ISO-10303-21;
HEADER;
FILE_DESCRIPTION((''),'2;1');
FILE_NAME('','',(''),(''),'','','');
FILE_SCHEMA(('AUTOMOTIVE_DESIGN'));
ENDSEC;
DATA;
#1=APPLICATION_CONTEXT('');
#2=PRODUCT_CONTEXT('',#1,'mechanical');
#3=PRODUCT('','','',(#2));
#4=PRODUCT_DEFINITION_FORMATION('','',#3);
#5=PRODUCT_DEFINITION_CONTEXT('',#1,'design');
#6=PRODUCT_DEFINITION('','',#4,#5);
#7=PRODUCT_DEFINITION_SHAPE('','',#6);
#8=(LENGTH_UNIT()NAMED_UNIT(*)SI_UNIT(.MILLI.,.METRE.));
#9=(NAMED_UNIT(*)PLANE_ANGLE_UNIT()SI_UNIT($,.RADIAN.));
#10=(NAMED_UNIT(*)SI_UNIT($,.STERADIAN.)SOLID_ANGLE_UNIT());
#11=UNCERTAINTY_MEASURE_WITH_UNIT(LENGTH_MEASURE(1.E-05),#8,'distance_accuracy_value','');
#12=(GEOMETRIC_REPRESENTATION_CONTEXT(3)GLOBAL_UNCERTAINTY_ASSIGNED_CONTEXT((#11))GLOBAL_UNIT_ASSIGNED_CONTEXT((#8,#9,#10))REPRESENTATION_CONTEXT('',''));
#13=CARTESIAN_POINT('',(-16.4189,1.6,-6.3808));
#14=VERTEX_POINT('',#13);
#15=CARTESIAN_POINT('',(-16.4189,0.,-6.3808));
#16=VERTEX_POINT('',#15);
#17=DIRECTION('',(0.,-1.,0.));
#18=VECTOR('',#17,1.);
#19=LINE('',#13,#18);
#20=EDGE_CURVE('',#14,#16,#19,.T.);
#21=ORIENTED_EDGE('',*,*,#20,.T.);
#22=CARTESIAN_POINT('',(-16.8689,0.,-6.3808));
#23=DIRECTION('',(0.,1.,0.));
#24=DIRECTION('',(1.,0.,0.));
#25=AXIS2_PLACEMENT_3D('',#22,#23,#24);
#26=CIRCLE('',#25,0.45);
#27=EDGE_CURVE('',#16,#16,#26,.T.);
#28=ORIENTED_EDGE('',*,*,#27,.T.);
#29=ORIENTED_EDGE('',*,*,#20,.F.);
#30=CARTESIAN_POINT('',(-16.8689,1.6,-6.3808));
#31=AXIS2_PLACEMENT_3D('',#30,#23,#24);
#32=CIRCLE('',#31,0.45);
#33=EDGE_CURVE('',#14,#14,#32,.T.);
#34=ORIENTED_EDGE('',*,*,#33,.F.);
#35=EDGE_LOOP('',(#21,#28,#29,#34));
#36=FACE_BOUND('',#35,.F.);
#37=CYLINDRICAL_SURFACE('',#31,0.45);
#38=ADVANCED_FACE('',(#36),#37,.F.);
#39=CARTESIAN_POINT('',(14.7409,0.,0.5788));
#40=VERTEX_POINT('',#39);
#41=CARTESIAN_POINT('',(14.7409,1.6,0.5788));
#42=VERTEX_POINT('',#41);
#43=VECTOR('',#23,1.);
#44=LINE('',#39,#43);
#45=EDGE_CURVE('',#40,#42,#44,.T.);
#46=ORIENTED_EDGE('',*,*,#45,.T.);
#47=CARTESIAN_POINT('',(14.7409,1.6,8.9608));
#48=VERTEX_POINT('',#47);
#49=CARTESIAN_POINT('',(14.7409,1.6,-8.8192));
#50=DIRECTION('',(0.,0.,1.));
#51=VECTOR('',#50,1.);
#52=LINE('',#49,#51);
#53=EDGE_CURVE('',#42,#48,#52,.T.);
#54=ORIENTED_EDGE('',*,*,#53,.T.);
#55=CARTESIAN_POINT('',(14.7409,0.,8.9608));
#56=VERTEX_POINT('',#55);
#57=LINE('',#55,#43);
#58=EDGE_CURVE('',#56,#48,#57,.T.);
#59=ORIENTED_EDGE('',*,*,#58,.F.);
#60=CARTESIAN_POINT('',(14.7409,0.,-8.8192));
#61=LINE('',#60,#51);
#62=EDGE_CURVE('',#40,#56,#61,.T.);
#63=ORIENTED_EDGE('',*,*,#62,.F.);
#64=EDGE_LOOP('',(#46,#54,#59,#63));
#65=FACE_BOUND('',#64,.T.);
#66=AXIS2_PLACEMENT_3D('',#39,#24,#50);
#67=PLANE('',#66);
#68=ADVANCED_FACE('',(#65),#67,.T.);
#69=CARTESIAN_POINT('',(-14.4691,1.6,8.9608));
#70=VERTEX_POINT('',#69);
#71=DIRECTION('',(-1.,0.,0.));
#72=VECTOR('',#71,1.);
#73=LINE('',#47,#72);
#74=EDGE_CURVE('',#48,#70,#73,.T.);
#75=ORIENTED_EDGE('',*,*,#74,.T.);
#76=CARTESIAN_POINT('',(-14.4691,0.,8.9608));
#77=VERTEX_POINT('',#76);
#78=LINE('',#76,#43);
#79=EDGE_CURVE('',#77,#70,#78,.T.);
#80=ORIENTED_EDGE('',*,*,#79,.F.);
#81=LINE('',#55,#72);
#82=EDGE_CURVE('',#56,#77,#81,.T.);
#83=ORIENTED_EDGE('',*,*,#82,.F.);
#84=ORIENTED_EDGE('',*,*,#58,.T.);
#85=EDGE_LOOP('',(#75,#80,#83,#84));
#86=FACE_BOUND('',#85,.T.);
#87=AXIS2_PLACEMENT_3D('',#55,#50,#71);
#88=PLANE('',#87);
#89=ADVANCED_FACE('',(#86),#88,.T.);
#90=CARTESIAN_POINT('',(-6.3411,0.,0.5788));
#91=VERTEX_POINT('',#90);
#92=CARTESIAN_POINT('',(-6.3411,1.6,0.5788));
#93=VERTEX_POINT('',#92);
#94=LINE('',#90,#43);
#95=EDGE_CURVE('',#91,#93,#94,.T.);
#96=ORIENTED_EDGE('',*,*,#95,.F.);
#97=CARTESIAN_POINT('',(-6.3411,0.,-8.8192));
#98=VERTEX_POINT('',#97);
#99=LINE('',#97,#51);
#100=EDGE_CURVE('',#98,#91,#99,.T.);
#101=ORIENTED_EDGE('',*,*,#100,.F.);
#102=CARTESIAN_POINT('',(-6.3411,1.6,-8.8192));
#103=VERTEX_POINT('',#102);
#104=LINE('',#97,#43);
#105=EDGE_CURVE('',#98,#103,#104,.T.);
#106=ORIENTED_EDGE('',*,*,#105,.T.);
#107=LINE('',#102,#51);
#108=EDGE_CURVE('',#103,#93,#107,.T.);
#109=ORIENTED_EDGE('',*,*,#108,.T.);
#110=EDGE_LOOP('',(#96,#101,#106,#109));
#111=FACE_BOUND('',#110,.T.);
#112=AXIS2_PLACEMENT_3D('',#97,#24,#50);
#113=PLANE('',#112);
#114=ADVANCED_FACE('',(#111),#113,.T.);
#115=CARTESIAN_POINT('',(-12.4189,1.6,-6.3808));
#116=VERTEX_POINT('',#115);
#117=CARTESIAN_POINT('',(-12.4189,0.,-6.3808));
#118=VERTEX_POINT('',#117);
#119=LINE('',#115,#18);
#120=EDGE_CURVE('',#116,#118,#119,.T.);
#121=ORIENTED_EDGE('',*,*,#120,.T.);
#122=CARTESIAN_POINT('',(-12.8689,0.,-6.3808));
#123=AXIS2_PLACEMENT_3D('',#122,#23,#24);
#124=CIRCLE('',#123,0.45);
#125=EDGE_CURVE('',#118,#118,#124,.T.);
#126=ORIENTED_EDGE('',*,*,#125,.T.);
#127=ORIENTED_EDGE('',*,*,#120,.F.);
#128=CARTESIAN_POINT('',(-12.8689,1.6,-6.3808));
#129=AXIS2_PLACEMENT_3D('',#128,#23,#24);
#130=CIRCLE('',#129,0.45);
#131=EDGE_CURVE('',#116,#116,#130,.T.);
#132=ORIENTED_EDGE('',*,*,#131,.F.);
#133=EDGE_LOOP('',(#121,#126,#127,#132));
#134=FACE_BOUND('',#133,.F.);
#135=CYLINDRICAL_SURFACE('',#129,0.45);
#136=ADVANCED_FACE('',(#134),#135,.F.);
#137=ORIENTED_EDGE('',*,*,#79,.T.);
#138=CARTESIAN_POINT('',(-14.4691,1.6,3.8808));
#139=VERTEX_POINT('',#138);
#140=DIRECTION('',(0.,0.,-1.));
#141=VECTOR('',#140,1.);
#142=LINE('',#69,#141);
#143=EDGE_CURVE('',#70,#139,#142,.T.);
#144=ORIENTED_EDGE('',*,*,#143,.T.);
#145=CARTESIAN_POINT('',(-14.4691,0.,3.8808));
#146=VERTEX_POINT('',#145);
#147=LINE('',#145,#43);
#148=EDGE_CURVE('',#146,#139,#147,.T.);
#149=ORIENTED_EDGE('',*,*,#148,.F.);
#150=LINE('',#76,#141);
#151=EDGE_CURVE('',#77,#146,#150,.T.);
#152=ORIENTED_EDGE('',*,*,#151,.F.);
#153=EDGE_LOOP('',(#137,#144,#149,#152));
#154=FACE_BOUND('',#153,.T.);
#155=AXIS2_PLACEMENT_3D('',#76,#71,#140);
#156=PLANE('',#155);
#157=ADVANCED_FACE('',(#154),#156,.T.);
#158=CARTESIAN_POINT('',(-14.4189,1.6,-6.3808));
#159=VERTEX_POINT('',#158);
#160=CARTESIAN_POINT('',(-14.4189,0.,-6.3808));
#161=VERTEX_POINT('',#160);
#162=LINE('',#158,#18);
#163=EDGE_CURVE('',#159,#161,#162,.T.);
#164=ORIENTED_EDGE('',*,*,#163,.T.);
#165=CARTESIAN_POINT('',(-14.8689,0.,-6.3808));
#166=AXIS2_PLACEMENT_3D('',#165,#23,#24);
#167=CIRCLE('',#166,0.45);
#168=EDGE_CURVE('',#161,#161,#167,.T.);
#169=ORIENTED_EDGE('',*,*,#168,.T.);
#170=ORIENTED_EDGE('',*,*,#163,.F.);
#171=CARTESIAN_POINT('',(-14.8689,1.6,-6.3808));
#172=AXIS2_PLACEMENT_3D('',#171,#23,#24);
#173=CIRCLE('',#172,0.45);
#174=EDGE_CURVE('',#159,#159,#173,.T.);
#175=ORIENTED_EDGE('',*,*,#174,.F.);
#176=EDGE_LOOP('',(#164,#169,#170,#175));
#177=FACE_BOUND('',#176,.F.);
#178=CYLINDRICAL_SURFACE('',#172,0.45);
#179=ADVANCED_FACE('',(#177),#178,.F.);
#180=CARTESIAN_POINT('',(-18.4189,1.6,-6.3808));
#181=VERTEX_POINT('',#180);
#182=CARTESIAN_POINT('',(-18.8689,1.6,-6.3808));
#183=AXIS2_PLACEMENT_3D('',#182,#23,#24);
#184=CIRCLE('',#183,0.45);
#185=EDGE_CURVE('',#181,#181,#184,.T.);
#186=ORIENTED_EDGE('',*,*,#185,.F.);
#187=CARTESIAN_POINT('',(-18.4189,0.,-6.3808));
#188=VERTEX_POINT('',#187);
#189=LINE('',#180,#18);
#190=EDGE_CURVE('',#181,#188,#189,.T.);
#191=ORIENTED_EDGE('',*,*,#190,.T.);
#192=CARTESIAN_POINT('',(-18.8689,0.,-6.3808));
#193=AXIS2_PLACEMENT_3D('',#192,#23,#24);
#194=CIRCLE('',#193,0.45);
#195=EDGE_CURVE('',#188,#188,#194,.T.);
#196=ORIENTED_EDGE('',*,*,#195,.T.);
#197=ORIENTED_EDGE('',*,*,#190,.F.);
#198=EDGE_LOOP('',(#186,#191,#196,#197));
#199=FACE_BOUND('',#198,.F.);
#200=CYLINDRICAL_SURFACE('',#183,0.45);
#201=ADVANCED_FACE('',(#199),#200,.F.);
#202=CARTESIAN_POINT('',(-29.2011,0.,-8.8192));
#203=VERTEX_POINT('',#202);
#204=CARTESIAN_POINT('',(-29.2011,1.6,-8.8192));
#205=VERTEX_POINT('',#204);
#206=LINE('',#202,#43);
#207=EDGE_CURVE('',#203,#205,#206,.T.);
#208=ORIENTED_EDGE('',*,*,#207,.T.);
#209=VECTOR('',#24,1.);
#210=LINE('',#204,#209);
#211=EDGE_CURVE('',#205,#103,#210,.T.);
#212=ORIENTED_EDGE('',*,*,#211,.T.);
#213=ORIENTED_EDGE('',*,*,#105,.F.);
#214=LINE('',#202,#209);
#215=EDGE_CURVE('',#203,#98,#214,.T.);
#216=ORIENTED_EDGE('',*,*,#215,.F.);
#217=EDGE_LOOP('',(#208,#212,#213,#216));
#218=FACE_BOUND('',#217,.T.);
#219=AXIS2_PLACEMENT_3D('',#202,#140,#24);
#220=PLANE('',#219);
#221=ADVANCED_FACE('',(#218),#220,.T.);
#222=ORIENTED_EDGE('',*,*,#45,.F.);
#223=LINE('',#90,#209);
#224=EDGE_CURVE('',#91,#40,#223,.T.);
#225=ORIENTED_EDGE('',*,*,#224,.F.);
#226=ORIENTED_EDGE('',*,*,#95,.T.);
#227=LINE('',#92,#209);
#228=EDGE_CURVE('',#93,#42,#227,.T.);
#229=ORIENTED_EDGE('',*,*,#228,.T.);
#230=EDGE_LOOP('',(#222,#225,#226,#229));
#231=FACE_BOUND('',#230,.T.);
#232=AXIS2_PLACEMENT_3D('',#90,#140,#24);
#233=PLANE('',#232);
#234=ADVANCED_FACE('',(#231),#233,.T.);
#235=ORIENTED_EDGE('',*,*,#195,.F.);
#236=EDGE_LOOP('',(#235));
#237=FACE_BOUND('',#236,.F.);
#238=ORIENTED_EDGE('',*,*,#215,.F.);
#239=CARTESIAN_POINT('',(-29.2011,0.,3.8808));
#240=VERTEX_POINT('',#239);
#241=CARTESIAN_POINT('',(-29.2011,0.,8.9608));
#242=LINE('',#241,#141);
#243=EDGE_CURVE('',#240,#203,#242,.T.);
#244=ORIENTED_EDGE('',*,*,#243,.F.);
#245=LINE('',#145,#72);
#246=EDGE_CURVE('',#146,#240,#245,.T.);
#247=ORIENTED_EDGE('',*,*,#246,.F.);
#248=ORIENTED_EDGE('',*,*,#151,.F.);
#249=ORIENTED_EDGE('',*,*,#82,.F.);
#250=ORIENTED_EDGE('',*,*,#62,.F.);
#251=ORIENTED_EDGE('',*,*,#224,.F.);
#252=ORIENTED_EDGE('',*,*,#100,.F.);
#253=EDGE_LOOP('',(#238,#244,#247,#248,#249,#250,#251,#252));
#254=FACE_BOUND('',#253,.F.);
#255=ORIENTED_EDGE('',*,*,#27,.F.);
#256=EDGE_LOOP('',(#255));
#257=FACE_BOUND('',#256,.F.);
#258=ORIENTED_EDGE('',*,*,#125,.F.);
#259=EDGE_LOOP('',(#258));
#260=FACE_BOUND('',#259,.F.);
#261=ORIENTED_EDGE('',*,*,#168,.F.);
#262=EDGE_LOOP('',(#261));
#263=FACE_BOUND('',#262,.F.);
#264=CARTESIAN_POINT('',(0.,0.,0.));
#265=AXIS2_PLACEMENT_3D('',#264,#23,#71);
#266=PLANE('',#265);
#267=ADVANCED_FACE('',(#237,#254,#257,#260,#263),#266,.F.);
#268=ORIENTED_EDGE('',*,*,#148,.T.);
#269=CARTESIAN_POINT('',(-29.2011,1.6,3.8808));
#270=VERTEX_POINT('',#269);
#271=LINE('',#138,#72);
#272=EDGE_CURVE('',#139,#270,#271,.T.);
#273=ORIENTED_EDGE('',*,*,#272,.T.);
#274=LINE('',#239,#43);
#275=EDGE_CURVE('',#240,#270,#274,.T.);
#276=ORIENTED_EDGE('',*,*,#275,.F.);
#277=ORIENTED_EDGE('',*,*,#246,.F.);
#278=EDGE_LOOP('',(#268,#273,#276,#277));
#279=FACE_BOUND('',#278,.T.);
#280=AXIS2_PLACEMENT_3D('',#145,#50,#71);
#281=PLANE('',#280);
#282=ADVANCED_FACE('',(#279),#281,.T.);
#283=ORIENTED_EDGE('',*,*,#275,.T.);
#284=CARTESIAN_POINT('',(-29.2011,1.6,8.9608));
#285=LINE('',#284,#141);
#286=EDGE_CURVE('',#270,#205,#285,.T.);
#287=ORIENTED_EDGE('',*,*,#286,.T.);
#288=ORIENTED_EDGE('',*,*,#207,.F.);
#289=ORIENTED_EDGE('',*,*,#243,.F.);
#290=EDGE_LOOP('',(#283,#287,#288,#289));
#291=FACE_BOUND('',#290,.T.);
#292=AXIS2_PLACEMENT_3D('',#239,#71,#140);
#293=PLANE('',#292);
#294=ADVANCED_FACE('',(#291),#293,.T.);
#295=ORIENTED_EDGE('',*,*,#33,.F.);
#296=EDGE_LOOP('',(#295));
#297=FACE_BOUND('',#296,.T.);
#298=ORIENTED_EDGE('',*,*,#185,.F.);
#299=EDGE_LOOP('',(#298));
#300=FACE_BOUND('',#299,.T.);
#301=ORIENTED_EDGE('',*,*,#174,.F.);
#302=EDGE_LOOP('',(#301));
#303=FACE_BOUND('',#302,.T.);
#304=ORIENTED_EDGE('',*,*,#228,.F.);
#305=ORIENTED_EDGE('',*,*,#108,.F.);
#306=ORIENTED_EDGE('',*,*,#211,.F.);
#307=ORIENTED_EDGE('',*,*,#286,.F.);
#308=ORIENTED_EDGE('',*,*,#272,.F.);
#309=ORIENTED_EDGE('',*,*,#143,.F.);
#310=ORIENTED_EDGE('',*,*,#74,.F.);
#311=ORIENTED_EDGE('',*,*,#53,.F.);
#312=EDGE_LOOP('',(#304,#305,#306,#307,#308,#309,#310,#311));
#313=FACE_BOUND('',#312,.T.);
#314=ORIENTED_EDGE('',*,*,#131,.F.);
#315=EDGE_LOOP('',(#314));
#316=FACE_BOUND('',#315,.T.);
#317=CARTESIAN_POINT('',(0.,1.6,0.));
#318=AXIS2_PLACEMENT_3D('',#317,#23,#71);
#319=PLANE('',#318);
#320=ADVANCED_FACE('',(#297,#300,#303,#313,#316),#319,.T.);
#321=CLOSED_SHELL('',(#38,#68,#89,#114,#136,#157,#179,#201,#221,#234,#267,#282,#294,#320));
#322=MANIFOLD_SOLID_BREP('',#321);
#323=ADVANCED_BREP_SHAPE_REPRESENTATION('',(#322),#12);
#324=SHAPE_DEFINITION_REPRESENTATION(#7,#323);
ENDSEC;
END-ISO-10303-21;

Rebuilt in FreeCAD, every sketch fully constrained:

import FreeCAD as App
import Part
import Sketcher
Q = App.Units.Quantity


def add_polygon(sketch, points):
    """Adds a closed chain of lines whose ends are joined by coincident constraints."""
    first, n = sketch.GeometryCount, len(points)
    for a, b in zip(points, points[1:] + points[:1]):
        sketch.addGeometry(Part.LineSegment(App.Vector(*a, 0), App.Vector(*b, 0)), False)
    for i in range(n):
        sketch.addConstraint(Sketcher.Constraint("Coincident", first + i, 2, first + (i + 1) % n, 1))

doc = App.newDocument("Part")
params = doc.addObject("Spreadsheet::Sheet", "Params")
for row, (alias, value) in enumerate([
    ("sketch1_height", "0.2 in"),
    ("sketch1_width", "0.83 in"),
    ("sketch1_width2", "0.58 in"),
    ("sketch1_height2", "0.37 in"),
    ("pad1_length", "0.0629921 in"),
], start=1):
    params.set(f"A{row}", alias)
    params.set(f"B{row}", "=" + value)
    params.setAlias(f"B{row}", alias)

body = doc.addObject("PartDesign::Body", "Body")

sketch1 = doc.addObject("Sketcher::SketchObject", "Sketch")
body.addObject(sketch1)
sketch1.AttachmentSupport = (doc.XZ_Plane, [""])
sketch1.MapMode = "FlatFace"
add_polygon(sketch1, [(-14, 9), (15, 9), (15, 1), (-6, 1), (-6, -9), (-29, -9), (-29, 4), (-14, 4)])
sketch1.addConstraint([
    Sketcher.Constraint("Horizontal", 0),
    Sketcher.Constraint("Vertical", 1),
    Sketcher.Constraint("Horizontal", 2),
    Sketcher.Constraint("Vertical", 3),
    Sketcher.Constraint("Horizontal", 4),
    Sketcher.Constraint("Vertical", 5),
    Sketcher.Constraint("Horizontal", 6),
    Sketcher.Constraint("Vertical", 7),
    Sketcher.Constraint("DistanceY", 7, 1, 7, 2, Q("0.2 in")),
    Sketcher.Constraint("DistanceX", 2, 2, 2, 1, Q("0.83 in")),
    Sketcher.Constraint("DistanceX", 6, 1, 6, 2, Q("0.58 in")),
    Sketcher.Constraint("DistanceY", 3, 2, 3, 1, Q("0.37 in")),
    Sketcher.Constraint("DistanceY", 3, 2, 0, 2, Q("0.7 in")),
    Sketcher.Constraint("DistanceX", 4, 2, 1, 2, Q("1.73 in")),
    Sketcher.Constraint("DistanceX", -1, 1, 0, 2, 14.741),
    Sketcher.Constraint("DistanceY", -1, 1, 0, 2, 8.9608),
])
sketch1.setExpression("Constraints[16]", "Params.sketch1_height")
sketch1.setExpression("Constraints[17]", "Params.sketch1_width")
sketch1.setExpression("Constraints[18]", "Params.sketch1_width2")
sketch1.setExpression("Constraints[19]", "Params.sketch1_height2")
pad1 = doc.addObject("PartDesign::Pad", "Pad")
body.addObject(pad1)
pad1.Profile = sketch1
pad1.setExpression("Length", "Params.pad1_length")
pad1.Reversed = True

sketch2 = doc.addObject("Sketcher::SketchObject", "Sketch001")
body.addObject(sketch2)
sketch2.AttachmentSupport = (doc.XZ_Plane, [""])
sketch2.MapMode = "FlatFace"
sketch2.AttachmentOffset = App.Placement(App.Vector(0, 0, -0.0629921 * 25.4), App.Rotation())
sketch2.addGeometry([
    Part.Circle(App.Vector(-12.87, -6.38, 0), App.Vector(0, 0, 1), 0.45),
    Part.Circle(App.Vector(-14.87, -6.38, 0), App.Vector(0, 0, 1), 0.45),
    Part.Circle(App.Vector(-16.87, -6.38, 0), App.Vector(0, 0, 1), 0.45),
    Part.Circle(App.Vector(-18.87, -6.38, 0), App.Vector(0, 0, 1), 0.45),
], False)
sketch2.addConstraint([
    Sketcher.Constraint("Equal", 0, 1),
    Sketcher.Constraint("Equal", 1, 2),
    Sketcher.Constraint("Equal", 2, 3),
    Sketcher.Constraint("Horizontal", 0, 3, 1, 3),
    Sketcher.Constraint("Horizontal", 1, 3, 2, 3),
    Sketcher.Constraint("Horizontal", 2, 3, 3, 3),
    Sketcher.Constraint("Diameter", 0, 0.9),
    Sketcher.Constraint("DistanceX", 1, 3, 0, 3, 2.0),
    Sketcher.Constraint("DistanceX", 2, 3, 1, 3, 2.0),
    Sketcher.Constraint("DistanceX", 3, 3, 2, 3, 2.0),
    Sketcher.Constraint("DistanceX", 1, 3, -1, 1, Q("0.5854 in")),
    Sketcher.Constraint("DistanceY", 0, 3, -1, 1, 6.3808),
])
pocket1 = doc.addObject("PartDesign::Pocket", "Pocket")
body.addObject(pocket1)
pocket1.Profile = sketch2
pocket1.Type = "UpToFirst"
pocket1.Reversed = True

doc.recompute()
